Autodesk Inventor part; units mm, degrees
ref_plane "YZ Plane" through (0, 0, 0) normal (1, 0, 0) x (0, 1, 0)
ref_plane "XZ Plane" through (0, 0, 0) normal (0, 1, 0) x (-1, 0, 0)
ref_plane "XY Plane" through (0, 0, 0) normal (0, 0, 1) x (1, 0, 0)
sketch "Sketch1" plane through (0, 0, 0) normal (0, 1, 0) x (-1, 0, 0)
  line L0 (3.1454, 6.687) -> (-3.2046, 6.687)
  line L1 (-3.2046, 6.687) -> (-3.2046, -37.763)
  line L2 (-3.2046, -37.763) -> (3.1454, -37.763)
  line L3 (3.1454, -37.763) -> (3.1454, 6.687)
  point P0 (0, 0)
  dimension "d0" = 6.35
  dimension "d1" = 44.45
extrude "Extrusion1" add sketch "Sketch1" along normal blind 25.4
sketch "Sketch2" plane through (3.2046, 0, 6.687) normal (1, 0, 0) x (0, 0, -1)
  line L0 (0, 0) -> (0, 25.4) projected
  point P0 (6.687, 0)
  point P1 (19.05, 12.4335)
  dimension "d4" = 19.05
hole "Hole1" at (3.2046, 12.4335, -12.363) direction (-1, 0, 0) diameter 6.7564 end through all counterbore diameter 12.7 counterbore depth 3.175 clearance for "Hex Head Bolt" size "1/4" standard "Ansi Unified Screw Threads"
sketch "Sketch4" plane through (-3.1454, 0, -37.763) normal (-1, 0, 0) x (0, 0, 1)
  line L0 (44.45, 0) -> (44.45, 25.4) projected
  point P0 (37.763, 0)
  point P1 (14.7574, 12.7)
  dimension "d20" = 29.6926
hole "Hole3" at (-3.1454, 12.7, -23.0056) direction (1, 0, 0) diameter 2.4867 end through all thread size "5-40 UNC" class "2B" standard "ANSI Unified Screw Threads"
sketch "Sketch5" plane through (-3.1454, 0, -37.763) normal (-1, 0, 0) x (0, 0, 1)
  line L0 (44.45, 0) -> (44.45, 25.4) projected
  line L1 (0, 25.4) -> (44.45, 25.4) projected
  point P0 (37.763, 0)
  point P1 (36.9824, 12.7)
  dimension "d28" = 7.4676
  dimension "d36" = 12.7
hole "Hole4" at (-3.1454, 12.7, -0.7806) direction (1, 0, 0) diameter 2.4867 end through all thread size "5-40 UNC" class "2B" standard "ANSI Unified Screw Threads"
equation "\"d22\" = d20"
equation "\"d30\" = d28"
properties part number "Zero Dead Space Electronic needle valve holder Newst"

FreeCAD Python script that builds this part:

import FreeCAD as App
import Part
import Sketcher

V = App.Vector
Q = App.Units.Quantity


def add_polygon(sketch, points):
    """Adds a closed chain of lines whose ends are joined by coincident constraints."""
    first, n = sketch.GeometryCount, len(points)
    for a, b in zip(points, points[1:] + points[:1]):
        sketch.addGeometry(Part.LineSegment(App.Vector(*a, 0), App.Vector(*b, 0)), False)
    for i in range(n):
        sketch.addConstraint(Sketcher.Constraint("Coincident", first + i, 2, first + (i + 1) % n, 1))

doc = App.newDocument("Part")
body = doc.addObject("PartDesign::Body", "Body")

# Sketch on XZ plane
sketch1 = body.newObject("Sketcher::SketchObject", "Sketch")
sketch1.AttachmentSupport = (doc.getObject("XZ_Plane"), [""])
sketch1.MapMode = "FlatFace"
add_polygon(sketch1, [(-3, -38), (-3, 7), (3, 7), (3, -38)])  # lines 0-3
sketch1.addConstraint([
    Sketcher.Constraint("Vertical", 0),
    Sketcher.Constraint("Horizontal", 1),
    Sketcher.Constraint("Vertical", 2),
    Sketcher.Constraint("Horizontal", 3),
    Sketcher.Constraint("DistanceX", 1, 1, 1, 2, Q("0.25 in")),
    Sketcher.Constraint("DistanceY", 0, 1, 0, 2, Q("1.75 in")),
    Sketcher.Constraint("DistanceX", 0, 2, -1, 1, 3.1454),
    Sketcher.Constraint("DistanceY", -1, 1, 0, 2, 6.687),
])
pad1 = body.newObject("PartDesign::Pad", "Pad")
pad1.Profile = sketch1
pad1.Length = Q("1 in")
pad1.Reversed = True

# Sketch on YZ plane
sketch2 = body.newObject("Sketcher::SketchObject", "Sketch001")
sketch2.AttachmentSupport = (doc.getObject("YZ_Plane"), [""])
sketch2.MapMode = "FlatFace"
sketch2.AttachmentOffset = App.Placement(V(0, 0, 3.2046), App.Rotation())
sketch2.addGeometry(Part.Circle(V(12.4, -12.4, 0), V(0, 0, 1), 3.4), False)
sketch2.addConstraint([
    Sketcher.Constraint("Diameter", 0, Q("0.266 in")),
    Sketcher.Constraint("DistanceX", -1, 1, 0, 3, Q("0.4895 in")),
    Sketcher.Constraint("DistanceY", 0, 3, -1, 1, 12.363),
])
doc.recompute()
hole = body.newObject("PartDesign::Hole", "Hole")
hole.Profile = sketch2
hole.ThreadType = "None"
hole.Diameter = Q("0.266 in")
hole.DepthType = "ThroughAll"
hole.HoleCutType = "Counterbore"
hole.HoleCutDiameter = Q("0.5 in")
hole.HoleCutDepth = Q("0.125 in")

# Sketch on YZ plane
sketch3 = body.newObject("Sketcher::SketchObject", "Sketch002")
sketch3.AttachmentSupport = (doc.getObject("YZ_Plane"), [""])
sketch3.MapMode = "FlatFace"
sketch3.AttachmentOffset = App.Placement(V(0, 0, -3.1454), App.Rotation())
sketch3.addGeometry(Part.Circle(V(12.7, -23, 0), V(0, 0, 1), 1.2), False)
sketch3.addConstraint([
    Sketcher.Constraint("Diameter", 0, Q("0.0979 in")),
    Sketcher.Constraint("DistanceX", -1, 1, 0, 3, Q("0.5 in")),
    Sketcher.Constraint("DistanceY", 0, 3, -1, 1, 23.0056),
])
doc.recompute()
hole2 = body.newObject("PartDesign::Hole", "Hole001")
hole2.Profile = sketch3
hole2.ThreadType = "None"
hole2.Diameter = Q("0.0979016 in")
hole2.DepthType = "ThroughAll"
hole2.Reversed = True

# Sketch on YZ plane
sketch4 = body.newObject("Sketcher::SketchObject", "Sketch003")
sketch4.AttachmentSupport = (doc.getObject("YZ_Plane"), [""])
sketch4.MapMode = "FlatFace"
sketch4.AttachmentOffset = App.Placement(V(0, 0, -3.1454), App.Rotation())
sketch4.addGeometry(Part.Circle(V(12.7, -0.8, 0), V(0, 0, 1), 1.2), False)
sketch4.addConstraint([
    Sketcher.Constraint("Diameter", 0, Q("0.0979 in")),
    Sketcher.Constraint("DistanceX", -1, 1, 0, 3, Q("0.5 in")),
    Sketcher.Constraint("DistanceY", 0, 3, -1, 1, 0.7806),
])
doc.recompute()
hole3 = body.newObject("PartDesign::Hole", "Hole002")
hole3.Profile = sketch4
hole3.ThreadType = "None"
hole3.Diameter = Q("0.0979016 in")
hole3.DepthType = "ThroughAll"
hole3.Reversed = True

doc.recompute()
